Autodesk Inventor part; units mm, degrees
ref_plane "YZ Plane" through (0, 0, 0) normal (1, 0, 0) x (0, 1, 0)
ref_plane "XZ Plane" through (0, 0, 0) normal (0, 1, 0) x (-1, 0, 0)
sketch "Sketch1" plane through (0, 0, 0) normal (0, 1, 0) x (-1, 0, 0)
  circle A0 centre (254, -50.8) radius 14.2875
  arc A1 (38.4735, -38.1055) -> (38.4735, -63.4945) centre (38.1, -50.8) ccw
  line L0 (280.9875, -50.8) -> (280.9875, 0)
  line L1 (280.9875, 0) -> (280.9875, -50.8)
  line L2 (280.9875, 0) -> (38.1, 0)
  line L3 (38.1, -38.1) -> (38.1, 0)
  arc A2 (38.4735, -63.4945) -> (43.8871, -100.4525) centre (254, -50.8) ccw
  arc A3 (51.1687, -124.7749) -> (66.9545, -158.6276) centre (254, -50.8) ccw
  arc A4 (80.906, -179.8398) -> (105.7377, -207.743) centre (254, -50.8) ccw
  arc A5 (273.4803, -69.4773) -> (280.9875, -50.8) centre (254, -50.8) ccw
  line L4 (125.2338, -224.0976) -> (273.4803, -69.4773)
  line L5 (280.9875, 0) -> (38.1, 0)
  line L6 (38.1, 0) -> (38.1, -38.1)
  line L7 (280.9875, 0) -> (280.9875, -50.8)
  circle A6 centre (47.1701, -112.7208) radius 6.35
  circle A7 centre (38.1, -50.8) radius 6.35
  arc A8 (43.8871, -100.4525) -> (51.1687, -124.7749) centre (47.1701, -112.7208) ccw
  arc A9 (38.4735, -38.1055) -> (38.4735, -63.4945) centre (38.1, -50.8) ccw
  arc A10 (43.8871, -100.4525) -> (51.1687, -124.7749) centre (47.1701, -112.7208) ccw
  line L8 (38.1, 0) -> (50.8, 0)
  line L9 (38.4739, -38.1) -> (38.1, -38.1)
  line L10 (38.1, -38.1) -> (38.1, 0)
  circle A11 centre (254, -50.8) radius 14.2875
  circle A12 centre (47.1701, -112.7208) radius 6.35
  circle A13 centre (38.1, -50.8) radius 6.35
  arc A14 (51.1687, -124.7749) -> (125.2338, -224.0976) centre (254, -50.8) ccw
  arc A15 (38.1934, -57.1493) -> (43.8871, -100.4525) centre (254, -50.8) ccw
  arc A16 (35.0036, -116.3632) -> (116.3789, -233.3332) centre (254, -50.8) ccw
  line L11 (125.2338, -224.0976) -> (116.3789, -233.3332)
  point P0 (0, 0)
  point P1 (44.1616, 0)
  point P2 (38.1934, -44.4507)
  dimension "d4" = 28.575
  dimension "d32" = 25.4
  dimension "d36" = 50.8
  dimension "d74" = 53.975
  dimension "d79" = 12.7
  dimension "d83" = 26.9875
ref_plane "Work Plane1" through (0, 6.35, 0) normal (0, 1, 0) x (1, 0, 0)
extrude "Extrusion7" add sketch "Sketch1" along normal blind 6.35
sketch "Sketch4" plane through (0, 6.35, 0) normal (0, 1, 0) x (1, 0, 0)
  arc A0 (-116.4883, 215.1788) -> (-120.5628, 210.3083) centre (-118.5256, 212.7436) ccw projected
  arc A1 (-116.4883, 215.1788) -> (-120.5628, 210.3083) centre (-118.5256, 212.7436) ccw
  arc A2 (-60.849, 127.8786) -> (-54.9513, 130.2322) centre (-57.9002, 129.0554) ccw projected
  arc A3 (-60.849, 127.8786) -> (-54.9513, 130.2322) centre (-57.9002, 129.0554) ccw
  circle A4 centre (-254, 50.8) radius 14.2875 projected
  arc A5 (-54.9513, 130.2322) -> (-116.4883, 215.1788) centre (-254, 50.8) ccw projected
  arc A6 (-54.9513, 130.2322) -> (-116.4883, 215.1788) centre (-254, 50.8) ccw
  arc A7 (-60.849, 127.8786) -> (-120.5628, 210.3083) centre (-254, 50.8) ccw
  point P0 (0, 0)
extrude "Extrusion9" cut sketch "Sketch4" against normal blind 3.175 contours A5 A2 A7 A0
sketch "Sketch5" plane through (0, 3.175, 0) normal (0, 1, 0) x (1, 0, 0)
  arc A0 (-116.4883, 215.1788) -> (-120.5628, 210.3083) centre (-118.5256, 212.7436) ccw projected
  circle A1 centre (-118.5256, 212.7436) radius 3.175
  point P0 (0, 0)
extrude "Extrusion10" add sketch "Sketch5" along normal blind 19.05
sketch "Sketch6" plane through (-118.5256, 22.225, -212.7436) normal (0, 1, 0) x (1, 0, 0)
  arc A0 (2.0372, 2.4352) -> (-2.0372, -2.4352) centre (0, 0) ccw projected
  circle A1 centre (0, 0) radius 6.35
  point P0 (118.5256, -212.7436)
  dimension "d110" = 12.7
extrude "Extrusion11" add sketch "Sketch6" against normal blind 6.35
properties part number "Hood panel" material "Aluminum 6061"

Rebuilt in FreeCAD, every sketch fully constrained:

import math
import FreeCAD as App
import Part
import Sketcher

V = App.Vector
Q = App.Units.Quantity

doc = App.newDocument("Part")
body = doc.addObject("PartDesign::Body", "Body")

# Sketch on XZ plane
sketch1 = body.newObject("Sketcher::SketchObject", "Sketch")
sketch1.AttachmentSupport = (doc.getObject("XZ_Plane"), [""])
sketch1.MapMode = "FlatFace"
sketch1.addGeometry([
    Part.LineSegment(V(-38.1, 0, 0), V(-38.1, -38.1, 0)),  # 0
    Part.ArcOfCircle(Part.Circle(V(-38.1, -50.8, 0), V(0, 0, 1), 12.699993), math.radians(-91.685281), math.radians(90)),  # 1
    Part.ArcOfCircle(Part.Circle(V(-253.993532, -50.800663, 0), V(0, 0, 1), 215.893533), math.radians(-13.296069), math.radians(-3.370749)),  # 2
    Part.ArcOfCircle(Part.Circle(V(-47.1701, -112.7208, 0), V(0, 0, 1), 12.699971), math.radians(-16.666619), math.radians(75.018656)),  # 3
    Part.ArcOfCircle(Part.Circle(V(-254, -50.8, 0), V(0, 0, 1), 228.599992), math.radians(-52.985494), math.radians(-16.666662)),  # 4
    Part.LineSegment(V(-116.3789, -233.3332, 0), V(-125.2338, -224.0976, 0)),  # 5
    Part.LineSegment(V(-125.2338, -224.0976, 0), V(-273.4803, -69.4773, 0)),  # 6
    Part.ArcOfCircle(Part.Circle(V(-254, -50.8, 0), V(0, 0, 1), 26.987472), math.radians(180), math.radians(223.794428)),  # 7
    Part.LineSegment(V(-280.9875, -50.8, 0), V(-280.9875, 0, 0)),  # 8
    Part.LineSegment(V(-280.9875, 0, 0), V(-38.1, 0, 0)),  # 9
    Part.Circle(V(-47.1701, -112.7208, 0), V(0, 0, 1), 6.35),  # 10
    Part.Circle(V(-38.1, -50.8, 0), V(0, 0, 1), 6.35),  # 11
    Part.Circle(V(-254, -50.8, 0), V(0, 0, 1), 14.2875),  # 12
], False)
sketch1.addConstraint([
    Sketcher.Constraint("Coincident", 0, 2, 1, 2),
    Sketcher.Constraint("Coincident", 1, 1, 2, 2),
    Sketcher.Constraint("Coincident", 2, 1, 3, 2),
    Sketcher.Constraint("Coincident", 3, 1, 4, 2),
    Sketcher.Constraint("Coincident", 4, 1, 5, 1),
    Sketcher.Constraint("Coincident", 5, 2, 6, 1),
    Sketcher.Constraint("Coincident", 6, 2, 7, 2),
    Sketcher.Constraint("Coincident", 7, 1, 8, 1),
    Sketcher.Constraint("Coincident", 8, 2, 9, 1),
    Sketcher.Constraint("Coincident", 9, 2, 0, 1),
    Sketcher.Constraint("Vertical", 0),
    Sketcher.Constraint("Vertical", 8),
    Sketcher.Constraint("Horizontal", 9),
    Sketcher.Constraint("Coincident", 7, 3, 4, 3),
    Sketcher.Constraint("Coincident", 10, 3, 3, 3),
    Sketcher.Constraint("Coincident", 11, 3, 1, 3),
    Sketcher.Constraint("Coincident", 12, 3, 4, 3),
    Sketcher.Constraint("PointOnObject", 8, 2, -1),
    Sketcher.Constraint("Diameter", 10, Q("0.5 in")),
    Sketcher.Constraint("Diameter", 11, Q("0.5 in")),
    Sketcher.Constraint("Radius", 1, Q("0.5 in")),
    Sketcher.Constraint("Radius", 3, Q("0.5 in")),
    Sketcher.Constraint("DistanceY", 8, 1, 8, 2, Q("2 in")),
    Sketcher.Constraint("Diameter", 12, Q("1.125 in")),
    Sketcher.Constraint("DistanceY", 1, 3, -1, 1, Q("2 in")),
    Sketcher.Constraint("DistanceY", 4, 3, -1, 1, Q("2 in")),
    Sketcher.Constraint("Radius", 4, Q("9 in")),
    Sketcher.Constraint("Radius", 7, Q("1.0625 in")),
    Sketcher.Constraint("DistanceX", 4, 3, -1, 1, Q("10 in")),
    Sketcher.Constraint("DistanceX", 1, 3, -1, 1, Q("1.5 in")),
    Sketcher.Constraint("DistanceX", 0, 2, -1, 1, Q("1.5 in")),
    Sketcher.Constraint("Radius", 2, 215.8935),
    Sketcher.Constraint("DistanceX", 3, 3, 3, 1, Q("0.479 in")),
    Sketcher.Constraint("DistanceX", 4, 1, 2, 1, Q("2.854 in")),
    Sketcher.Constraint("DistanceX", 3, 3, -1, 1, Q("1.8571 in")),
    Sketcher.Constraint("DistanceX", 1, 1, -1, 1, Q("1.5147 in")),
    Sketcher.Constraint("DistanceY", 3, 3, 2, 3, Q("2.4378 in")),
    Sketcher.Constraint("DistanceY", 4, 1, 5, 2, Q("0.3636 in")),
    Sketcher.Constraint("DistanceX", 6, 2, 2, 3, Q("0.7672 in")),
    Sketcher.Constraint("Distance", 5, 12.7947),
])
pad1 = body.newObject("PartDesign::Pad", "Pad")
pad1.Profile = sketch1
pad1.Length = Q("0.25 in")
pad1.Reversed = True

# Sketch on XZ plane
sketch2 = body.newObject("Sketcher::SketchObject", "Sketch001")
sketch2.AttachmentSupport = (doc.getObject("XZ_Plane"), [""])
sketch2.MapMode = "FlatFace"
sketch2.AttachmentOffset = App.Placement(V(0, 0, -0.25 * 25.4), App.Rotation())
sketch2.addGeometry([
    Part.ArcOfCircle(Part.Circle(V(-254, -50.8, 0), V(0, 0, 1), 214.312527), math.radians(-50.085707), math.radians(-21.754922)),
    Part.ArcOfCircle(Part.Circle(V(-118.5256, -212.7436, 0), V(0, 0, 1), 3.175026), math.radians(129.913472), math.radians(309.916014)),
    Part.ArcOfCircle(Part.Circle(V(-253.998769, -50.800678, 0), V(0, 0, 1), 207.961149), math.radians(-50.085861), math.radians(-21.754856)),
    Part.ArcOfCircle(Part.Circle(V(-57.9002, -129.0554, 0), V(0, 0, 1), 3.174946), math.radians(-21.755166), math.radians(158.244165)),
], False)
sketch2.addConstraint([
    Sketcher.Constraint("Tangent", 0, 1, 1, 2),
    Sketcher.Constraint("Tangent", 1, 1, 2, 1),
    Sketcher.Constraint("Tangent", 2, 2, 3, 2),
    Sketcher.Constraint("Tangent", 3, 1, 0, 2),
    Sketcher.Constraint("Equal", 1, 3),
    Sketcher.Constraint("DistanceX", 0, 3, -1, 1, Q("10 in")),
    Sketcher.Constraint("DistanceY", 0, 3, -1, 1, Q("2 in")),
    Sketcher.Constraint("Radius", 0, Q("8.4375 in")),
    Sketcher.Constraint("Radius", 1, Q("0.125 in")),
    Sketcher.Constraint("Radius", 2, 207.9611),
    Sketcher.Constraint("DistanceY", 0, 1, -1, 1, Q("8.4716 in")),
    Sketcher.Constraint("DistanceY", 2, 2, -1, 1, Q("5.0346 in")),
])
pocket1 = body.newObject("PartDesign::Pocket", "Pocket")
pocket1.Profile = sketch2
pocket1.Length = Q("0.125 in")
pocket1.Reversed = True

# Sketch on XZ plane
sketch3 = body.newObject("Sketcher::SketchObject", "Sketch002")
sketch3.AttachmentSupport = (doc.getObject("XZ_Plane"), [""])
sketch3.MapMode = "FlatFace"
sketch3.AttachmentOffset = App.Placement(V(0, 0, -0.125 * 25.4), App.Rotation())
sketch3.addGeometry([
    Part.ArcOfCircle(Part.Circle(V(-118.5256, -212.7436, 0), V(0, 0, 1), 3.175), math.radians(-50.083986), math.radians(129.913472)),
    Part.ArcOfCircle(Part.Circle(V(-118.5256, -212.7436, 0), V(0, 0, 1), 3.175026), math.radians(129.913472), math.radians(309.916014)),
], False)
sketch3.addConstraint([
    Sketcher.Constraint("Tangent", 0, 1, 1, 2),
    Sketcher.Constraint("Coincident", 1, 1, 0, 2),
    Sketcher.Constraint("Radius", 0, Q("0.125 in")),
    Sketcher.Constraint("DistanceY", 0, 1, -1, 1, Q("8.4716 in")),
    Sketcher.Constraint("DistanceX", 0, 3, 0, 1, Q("0.0802 in")),
    Sketcher.Constraint("DistanceX", 1, 1, 0, 3, Q("0.0802 in")),
    Sketcher.Constraint("DistanceX", 0, 3, -1, 1, 118.5256),
])
pad2 = body.newObject("PartDesign::Pad", "Pad001")
pad2.Profile = sketch3
pad2.Length = Q("0.75 in")
pad2.Reversed = True

# Sketch on XZ plane
sketch4 = body.newObject("Sketcher::SketchObject", "Sketch003")
sketch4.AttachmentSupport = (doc.getObject("XZ_Plane"), [""])
sketch4.MapMode = "FlatFace"
sketch4.AttachmentOffset = App.Placement(V(0, 0, -0.875 * 25.4), App.Rotation())
sketch4.addGeometry(Part.Circle(V(-118.5256, -212.7436, 0), V(0, 0, 1), 6.35), False)
sketch4.addConstraint([
    Sketcher.Constraint("Diameter", 0, Q("0.5 in")),
    Sketcher.Constraint("DistanceX", 0, 3, -1, 1, 118.5256),
    Sketcher.Constraint("DistanceY", 0, 3, -1, 1, 212.7436),
])
pad3 = body.newObject("PartDesign::Pad", "Pad002")
pad3.Profile = sketch4
pad3.Length = Q("0.25 in")

doc.recompute()
